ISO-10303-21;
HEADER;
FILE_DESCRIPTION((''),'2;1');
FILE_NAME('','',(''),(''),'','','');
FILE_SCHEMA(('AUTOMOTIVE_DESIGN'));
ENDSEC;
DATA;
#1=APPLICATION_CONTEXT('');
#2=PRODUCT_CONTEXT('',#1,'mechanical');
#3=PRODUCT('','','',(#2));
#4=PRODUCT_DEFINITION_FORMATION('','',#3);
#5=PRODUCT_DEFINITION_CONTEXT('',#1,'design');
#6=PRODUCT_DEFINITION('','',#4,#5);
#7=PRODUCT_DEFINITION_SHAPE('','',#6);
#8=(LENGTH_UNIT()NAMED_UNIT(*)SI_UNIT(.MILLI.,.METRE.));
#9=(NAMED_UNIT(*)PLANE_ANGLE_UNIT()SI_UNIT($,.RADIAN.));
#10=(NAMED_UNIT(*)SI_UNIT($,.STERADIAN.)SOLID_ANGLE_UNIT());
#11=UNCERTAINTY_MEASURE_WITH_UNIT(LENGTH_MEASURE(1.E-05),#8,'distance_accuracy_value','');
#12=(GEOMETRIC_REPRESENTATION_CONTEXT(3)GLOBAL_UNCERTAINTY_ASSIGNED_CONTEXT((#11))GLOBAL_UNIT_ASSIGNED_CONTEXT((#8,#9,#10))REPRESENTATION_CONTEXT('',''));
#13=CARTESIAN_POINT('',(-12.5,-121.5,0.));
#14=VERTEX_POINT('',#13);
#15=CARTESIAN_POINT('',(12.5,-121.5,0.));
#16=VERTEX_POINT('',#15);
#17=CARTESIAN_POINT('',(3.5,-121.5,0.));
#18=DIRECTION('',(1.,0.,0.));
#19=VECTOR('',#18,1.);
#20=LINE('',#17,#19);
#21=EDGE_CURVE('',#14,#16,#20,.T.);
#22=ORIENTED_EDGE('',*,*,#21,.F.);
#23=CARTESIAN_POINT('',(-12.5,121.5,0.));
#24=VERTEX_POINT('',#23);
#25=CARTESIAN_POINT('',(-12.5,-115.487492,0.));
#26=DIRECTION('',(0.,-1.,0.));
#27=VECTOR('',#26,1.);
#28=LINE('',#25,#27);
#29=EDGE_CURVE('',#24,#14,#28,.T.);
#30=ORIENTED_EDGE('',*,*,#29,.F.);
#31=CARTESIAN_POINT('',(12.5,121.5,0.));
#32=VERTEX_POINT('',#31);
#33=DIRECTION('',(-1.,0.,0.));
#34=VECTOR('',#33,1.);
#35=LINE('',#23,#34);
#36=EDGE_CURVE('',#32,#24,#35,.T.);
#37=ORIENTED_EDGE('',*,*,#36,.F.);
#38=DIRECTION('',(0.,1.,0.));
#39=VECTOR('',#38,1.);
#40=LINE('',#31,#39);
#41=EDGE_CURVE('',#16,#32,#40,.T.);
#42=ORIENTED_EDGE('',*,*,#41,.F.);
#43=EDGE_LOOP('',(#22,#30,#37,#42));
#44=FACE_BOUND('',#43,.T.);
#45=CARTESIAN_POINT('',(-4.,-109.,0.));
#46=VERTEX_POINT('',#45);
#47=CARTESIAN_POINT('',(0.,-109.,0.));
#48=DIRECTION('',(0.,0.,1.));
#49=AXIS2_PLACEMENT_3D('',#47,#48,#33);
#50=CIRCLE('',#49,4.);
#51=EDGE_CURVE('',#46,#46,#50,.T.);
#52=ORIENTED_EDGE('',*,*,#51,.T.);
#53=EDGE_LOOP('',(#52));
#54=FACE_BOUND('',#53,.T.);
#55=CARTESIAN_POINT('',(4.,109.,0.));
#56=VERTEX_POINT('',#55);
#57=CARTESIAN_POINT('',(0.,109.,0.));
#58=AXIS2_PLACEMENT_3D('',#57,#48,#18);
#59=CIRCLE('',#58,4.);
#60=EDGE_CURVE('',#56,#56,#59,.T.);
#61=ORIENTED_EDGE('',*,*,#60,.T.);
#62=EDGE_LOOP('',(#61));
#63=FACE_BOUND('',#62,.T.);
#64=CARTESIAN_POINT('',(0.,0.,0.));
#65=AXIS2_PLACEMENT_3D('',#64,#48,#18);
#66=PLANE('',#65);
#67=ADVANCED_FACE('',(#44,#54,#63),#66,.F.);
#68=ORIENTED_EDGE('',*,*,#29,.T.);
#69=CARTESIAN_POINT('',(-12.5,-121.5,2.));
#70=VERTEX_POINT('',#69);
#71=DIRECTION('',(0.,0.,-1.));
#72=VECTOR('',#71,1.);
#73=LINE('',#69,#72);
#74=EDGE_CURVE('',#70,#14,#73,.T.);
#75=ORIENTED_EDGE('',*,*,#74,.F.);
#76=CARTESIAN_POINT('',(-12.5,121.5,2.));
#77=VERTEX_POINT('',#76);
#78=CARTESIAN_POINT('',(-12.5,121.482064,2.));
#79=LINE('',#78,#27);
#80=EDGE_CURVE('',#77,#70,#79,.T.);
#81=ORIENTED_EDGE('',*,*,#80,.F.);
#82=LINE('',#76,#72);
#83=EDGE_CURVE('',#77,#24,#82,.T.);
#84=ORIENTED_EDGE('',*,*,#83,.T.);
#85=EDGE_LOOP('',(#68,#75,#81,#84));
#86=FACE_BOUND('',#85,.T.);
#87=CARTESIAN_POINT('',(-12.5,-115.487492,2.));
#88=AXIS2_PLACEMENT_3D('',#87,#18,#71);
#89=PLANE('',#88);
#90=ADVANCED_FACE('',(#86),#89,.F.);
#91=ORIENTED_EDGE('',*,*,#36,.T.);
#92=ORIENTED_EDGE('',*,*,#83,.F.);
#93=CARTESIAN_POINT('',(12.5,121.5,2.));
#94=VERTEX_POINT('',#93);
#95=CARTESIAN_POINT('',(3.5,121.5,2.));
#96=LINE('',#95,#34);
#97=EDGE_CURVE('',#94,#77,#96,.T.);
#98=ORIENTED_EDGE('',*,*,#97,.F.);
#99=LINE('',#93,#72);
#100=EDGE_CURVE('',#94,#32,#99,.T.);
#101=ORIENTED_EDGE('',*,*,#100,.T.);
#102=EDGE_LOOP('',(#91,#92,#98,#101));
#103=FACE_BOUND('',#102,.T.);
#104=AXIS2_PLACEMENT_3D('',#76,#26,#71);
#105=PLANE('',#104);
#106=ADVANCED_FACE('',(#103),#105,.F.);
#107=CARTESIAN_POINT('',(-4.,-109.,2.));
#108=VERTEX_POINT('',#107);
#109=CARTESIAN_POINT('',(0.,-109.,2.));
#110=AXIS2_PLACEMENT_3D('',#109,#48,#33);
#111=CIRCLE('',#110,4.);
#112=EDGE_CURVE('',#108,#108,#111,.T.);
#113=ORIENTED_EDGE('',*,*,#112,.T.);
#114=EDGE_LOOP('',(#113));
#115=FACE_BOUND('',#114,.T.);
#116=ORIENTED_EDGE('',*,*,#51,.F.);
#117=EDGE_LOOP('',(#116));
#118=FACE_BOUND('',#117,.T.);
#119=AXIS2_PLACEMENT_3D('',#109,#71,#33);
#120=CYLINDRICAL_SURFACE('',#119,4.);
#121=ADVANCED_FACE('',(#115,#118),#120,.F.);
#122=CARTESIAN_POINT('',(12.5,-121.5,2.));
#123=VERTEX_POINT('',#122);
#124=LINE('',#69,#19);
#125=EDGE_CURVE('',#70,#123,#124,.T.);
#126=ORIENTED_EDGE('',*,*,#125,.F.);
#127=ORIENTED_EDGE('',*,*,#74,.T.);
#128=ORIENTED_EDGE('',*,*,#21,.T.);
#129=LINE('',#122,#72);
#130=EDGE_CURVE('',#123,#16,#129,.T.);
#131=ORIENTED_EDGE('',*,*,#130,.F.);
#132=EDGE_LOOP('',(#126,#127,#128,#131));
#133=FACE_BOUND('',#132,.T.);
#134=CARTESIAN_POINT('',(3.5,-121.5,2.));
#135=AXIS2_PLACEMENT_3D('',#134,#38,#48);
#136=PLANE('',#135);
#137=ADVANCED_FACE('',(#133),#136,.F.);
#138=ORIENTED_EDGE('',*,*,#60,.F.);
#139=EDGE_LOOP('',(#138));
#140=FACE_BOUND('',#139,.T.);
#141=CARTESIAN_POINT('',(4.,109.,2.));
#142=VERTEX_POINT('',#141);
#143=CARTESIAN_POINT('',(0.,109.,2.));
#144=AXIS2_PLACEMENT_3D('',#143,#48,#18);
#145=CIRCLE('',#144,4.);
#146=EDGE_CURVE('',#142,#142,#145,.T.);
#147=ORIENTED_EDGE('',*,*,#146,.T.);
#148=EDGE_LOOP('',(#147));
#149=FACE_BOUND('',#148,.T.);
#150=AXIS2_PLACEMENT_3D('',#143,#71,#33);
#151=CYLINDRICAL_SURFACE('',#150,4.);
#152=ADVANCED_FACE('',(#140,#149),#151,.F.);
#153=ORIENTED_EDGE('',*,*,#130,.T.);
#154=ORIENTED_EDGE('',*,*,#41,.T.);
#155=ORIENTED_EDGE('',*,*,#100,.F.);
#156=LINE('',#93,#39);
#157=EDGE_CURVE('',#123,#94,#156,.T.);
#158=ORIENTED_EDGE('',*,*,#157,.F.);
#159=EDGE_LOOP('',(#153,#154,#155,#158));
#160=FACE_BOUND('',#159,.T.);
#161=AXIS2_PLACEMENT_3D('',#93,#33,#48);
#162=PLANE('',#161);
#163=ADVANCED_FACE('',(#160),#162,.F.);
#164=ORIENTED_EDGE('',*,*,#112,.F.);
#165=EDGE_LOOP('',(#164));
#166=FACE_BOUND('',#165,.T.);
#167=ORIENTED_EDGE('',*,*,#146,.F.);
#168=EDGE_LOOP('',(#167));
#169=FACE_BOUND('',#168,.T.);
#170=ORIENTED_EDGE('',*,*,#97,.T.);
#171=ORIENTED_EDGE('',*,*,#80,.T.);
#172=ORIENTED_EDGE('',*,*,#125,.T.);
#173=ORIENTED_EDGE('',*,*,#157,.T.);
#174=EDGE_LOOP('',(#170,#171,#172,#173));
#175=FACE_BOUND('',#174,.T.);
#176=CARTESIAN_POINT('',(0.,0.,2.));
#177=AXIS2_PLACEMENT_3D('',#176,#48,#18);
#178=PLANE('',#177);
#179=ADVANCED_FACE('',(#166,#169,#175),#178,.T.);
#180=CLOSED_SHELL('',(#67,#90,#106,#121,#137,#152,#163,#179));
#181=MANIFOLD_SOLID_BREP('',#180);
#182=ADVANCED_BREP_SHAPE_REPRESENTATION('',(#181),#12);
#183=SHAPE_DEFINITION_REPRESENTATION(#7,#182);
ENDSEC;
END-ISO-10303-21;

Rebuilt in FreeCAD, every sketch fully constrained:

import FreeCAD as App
import Part
import Sketcher
from FreeCAD import Vector


def add_polygon(sketch, points):
    """Adds a closed chain of lines whose ends are joined by coincident constraints."""
    first, n = sketch.GeometryCount, len(points)
    for a, b in zip(points, points[1:] + points[:1]):
        sketch.addGeometry(Part.LineSegment(App.Vector(*a, 0), App.Vector(*b, 0)), False)
    for i in range(n):
        sketch.addConstraint(Sketcher.Constraint("Coincident", first + i, 2, first + (i + 1) % n, 1))

doc = App.newDocument("Part")
body = doc.addObject("PartDesign::Body", "Body")

# Sketch on XY plane
sketch1 = body.newObject("Sketcher::SketchObject", "Sketch")
sketch1.AttachmentSupport = (doc.getObject("XY_Plane"), [""])
sketch1.MapMode = "FlatFace"
add_polygon(sketch1, [(12.5, 121.5), (-12.5, 121.5), (-12.5, -121.5), (12.5, -121.5)])  # lines 0-3
sketch1.addGeometry(Part.Circle(Vector(0, -109, 0), Vector(0, 0, 1), 4), False)  # 4
sketch1.addGeometry(Part.Circle(Vector(0, 109, 0), Vector(0, 0, 1), 4), False)  # 5
sketch1.addConstraint([
    Sketcher.Constraint("Horizontal", 0),
    Sketcher.Constraint("Vertical", 1),
    Sketcher.Constraint("Horizontal", 2),
    Sketcher.Constraint("Vertical", 3),
    Sketcher.Constraint("Equal", 4, 5),
    Sketcher.Constraint("Symmetric", 4, 3, 5, 3, -1, 1),
    Sketcher.Constraint("Symmetric", 0, 2, 2, 2, -1, 1),
    Sketcher.Constraint("PointOnObject", 4, 3, -2),
    Sketcher.Constraint("Diameter", 4, 8.0),
    Sketcher.Constraint("DistanceX", 0, 2, 0, 1, 25.0),
    Sketcher.Constraint("DistanceY", 1, 2, 1, 1, 243.0),
    Sketcher.Constraint("DistanceY", 4, 3, -1, 1, 109.0),
])
pad1 = body.newObject("PartDesign::Pad", "Pad")
pad1.Profile = sketch1
pad1.Length = 2

doc.recompute()
